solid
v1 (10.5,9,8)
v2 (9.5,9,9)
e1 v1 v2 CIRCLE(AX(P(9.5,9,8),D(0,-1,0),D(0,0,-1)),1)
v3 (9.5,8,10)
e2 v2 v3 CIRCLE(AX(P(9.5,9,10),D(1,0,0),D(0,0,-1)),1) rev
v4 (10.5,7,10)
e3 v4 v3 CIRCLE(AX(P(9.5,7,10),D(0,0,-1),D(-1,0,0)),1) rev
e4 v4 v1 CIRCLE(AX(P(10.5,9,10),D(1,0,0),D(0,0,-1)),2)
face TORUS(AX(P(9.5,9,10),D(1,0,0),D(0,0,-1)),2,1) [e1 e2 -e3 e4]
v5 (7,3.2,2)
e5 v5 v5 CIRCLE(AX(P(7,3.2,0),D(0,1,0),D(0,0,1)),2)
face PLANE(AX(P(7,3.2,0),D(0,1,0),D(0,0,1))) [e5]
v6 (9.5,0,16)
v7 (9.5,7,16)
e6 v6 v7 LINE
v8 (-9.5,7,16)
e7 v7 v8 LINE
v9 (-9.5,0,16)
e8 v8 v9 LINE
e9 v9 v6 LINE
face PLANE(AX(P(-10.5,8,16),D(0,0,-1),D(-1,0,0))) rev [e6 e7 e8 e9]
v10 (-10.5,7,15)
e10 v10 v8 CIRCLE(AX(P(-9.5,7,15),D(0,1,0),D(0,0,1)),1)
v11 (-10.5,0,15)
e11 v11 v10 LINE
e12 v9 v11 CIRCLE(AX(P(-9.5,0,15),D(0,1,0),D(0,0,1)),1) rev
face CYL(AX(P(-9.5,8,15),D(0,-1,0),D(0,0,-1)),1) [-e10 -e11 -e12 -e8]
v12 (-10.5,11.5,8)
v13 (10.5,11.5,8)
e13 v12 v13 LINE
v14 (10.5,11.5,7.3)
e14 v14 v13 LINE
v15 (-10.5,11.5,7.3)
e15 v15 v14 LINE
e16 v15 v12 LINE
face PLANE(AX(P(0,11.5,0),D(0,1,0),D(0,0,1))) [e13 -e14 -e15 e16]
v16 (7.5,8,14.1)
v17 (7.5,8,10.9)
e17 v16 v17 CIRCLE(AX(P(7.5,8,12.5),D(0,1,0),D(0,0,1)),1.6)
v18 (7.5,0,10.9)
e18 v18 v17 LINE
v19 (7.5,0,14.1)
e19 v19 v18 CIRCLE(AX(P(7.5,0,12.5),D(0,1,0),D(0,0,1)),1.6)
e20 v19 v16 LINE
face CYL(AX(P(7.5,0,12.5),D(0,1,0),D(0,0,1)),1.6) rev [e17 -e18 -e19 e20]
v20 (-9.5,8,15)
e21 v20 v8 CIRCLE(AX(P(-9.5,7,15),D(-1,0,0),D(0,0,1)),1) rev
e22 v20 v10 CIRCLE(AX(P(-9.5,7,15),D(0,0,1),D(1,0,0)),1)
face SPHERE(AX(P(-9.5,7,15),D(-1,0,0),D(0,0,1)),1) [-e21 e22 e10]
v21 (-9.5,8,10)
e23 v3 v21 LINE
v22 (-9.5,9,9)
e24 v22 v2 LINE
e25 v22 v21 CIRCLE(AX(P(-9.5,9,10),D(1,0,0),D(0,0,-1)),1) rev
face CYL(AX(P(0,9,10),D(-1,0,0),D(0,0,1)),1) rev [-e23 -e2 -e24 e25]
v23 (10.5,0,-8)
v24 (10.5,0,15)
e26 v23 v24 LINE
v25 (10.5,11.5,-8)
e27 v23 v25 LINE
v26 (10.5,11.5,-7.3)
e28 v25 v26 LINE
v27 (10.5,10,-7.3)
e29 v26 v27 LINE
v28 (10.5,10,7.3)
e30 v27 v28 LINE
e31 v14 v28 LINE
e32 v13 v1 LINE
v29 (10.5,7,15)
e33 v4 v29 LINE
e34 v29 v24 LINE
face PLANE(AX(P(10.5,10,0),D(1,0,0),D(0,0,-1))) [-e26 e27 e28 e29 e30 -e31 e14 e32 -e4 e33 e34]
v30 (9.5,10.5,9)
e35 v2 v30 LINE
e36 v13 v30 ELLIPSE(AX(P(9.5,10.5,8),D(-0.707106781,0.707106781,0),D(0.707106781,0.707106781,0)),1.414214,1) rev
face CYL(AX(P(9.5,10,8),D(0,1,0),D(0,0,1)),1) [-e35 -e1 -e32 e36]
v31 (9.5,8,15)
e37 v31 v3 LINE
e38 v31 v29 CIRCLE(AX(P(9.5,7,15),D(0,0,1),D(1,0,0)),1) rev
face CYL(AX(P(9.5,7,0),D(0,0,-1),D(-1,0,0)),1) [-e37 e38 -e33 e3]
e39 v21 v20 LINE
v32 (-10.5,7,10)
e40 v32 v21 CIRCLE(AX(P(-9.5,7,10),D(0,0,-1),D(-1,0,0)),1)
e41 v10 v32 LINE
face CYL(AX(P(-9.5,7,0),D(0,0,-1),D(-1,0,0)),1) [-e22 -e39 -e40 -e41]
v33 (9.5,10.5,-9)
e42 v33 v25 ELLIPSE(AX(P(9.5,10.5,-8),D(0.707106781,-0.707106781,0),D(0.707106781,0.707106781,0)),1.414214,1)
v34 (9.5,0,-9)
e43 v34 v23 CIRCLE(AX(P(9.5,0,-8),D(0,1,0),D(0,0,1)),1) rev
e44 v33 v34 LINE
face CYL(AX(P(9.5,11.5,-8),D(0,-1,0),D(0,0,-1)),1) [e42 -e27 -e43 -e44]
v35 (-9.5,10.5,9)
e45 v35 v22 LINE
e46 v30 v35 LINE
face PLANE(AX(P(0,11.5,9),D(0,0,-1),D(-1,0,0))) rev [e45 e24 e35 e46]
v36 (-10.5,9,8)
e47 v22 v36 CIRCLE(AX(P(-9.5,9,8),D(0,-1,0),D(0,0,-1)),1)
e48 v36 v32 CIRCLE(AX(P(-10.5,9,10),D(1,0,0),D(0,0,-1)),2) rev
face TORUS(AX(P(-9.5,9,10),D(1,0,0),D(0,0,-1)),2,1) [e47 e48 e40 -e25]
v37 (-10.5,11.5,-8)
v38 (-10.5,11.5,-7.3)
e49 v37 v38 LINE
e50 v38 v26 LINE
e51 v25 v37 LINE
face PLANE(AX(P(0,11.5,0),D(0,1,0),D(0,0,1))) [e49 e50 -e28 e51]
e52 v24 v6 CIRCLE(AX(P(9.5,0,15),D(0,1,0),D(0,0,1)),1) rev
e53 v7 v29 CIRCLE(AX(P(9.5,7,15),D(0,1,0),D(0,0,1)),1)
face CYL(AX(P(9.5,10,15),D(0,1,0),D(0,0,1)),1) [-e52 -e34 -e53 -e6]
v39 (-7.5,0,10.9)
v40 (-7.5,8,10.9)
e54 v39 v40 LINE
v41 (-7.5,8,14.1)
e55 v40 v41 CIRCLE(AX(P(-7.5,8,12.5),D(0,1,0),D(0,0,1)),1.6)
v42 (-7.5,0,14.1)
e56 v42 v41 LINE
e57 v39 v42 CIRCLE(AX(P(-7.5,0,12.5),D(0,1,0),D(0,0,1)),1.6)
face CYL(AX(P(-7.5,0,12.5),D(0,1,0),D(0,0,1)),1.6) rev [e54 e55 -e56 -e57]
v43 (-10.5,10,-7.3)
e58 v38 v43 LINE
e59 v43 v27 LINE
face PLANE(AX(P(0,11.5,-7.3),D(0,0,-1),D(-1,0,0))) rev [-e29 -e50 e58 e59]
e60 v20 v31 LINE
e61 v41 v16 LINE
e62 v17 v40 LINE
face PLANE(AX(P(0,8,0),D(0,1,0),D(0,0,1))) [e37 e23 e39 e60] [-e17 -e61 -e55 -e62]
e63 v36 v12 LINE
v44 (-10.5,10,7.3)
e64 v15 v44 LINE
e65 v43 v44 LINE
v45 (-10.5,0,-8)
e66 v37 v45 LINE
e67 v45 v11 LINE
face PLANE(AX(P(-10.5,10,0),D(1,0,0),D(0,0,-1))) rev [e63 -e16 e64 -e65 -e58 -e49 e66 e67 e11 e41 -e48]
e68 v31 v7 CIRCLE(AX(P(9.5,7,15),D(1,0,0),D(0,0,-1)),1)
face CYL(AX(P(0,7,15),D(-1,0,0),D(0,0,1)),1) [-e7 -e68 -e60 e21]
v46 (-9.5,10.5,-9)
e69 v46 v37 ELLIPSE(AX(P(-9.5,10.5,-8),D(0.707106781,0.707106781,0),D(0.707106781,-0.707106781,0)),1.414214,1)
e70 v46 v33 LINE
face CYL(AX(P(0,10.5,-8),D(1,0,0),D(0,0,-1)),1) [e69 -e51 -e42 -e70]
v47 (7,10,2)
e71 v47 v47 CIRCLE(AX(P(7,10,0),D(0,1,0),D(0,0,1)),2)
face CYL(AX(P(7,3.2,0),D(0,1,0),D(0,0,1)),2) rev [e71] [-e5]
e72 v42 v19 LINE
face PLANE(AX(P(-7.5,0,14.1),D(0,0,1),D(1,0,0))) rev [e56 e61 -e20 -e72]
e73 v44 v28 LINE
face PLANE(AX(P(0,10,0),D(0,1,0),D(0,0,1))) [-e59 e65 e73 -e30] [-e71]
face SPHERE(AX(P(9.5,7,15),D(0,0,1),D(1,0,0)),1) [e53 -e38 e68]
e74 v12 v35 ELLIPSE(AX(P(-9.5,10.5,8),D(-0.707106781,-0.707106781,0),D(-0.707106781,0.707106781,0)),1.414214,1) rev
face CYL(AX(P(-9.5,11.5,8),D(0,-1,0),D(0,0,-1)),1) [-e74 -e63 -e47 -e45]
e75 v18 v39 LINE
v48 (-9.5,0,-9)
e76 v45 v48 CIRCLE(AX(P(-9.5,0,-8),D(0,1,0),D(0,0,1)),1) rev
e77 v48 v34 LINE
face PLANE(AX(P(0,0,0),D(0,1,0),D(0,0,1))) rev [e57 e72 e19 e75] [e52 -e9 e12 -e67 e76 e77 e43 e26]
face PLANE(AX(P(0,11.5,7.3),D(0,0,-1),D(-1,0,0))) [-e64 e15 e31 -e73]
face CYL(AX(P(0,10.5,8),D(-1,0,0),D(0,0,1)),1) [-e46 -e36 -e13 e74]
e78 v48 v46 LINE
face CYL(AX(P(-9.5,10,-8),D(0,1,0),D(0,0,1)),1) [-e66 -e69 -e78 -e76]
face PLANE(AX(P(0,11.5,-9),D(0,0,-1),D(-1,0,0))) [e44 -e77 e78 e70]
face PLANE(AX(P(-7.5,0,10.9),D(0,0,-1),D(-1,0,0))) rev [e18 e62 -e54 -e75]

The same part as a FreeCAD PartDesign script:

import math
import FreeCAD as App
import Part
import Sketcher

V = App.Vector


def edges_at(feature, points):
    """Names of the edges that pass closest to the given points."""
    edges = feature.Shape.Edges
    near = lambda p: min(range(len(edges)), key=lambda i: edges[i].distToShape(Part.Vertex(*p))[0])
    return sorted({f"Edge{near(p) + 1}" for p in points})

doc = App.newDocument("Part")
body = doc.addObject("PartDesign::Body", "Body")

# Sketch on XZ plane
sketch1 = doc.addObject("Sketcher::SketchObject", "Sketch")
body.addObject(sketch1)
sketch1.AttachmentSupport = (doc.XZ_Plane, [""])
sketch1.MapMode = "FlatFace"
sketch1.addGeometry([
    Part.LineSegment(V(-10, -7, 0), V(-10, 7, 0)),
    Part.LineSegment(V(-10, 7, 0), V(10, 7, 0)),
    Part.LineSegment(V(10, 7, 0), V(10, -7, 0)),
    Part.LineSegment(V(10, -7, 0), V(-10, -7, 0)),
], False)
sketch1.addConstraint([
    Sketcher.Constraint("Coincident", 0, 2, 1, 1),
    Sketcher.Constraint("Coincident", 1, 2, 2, 1),
    Sketcher.Constraint("Coincident", 2, 2, 3, 1),
    Sketcher.Constraint("Coincident", 3, 2, 0, 1),
    Sketcher.Constraint("Vertical", 0),
    Sketcher.Constraint("Horizontal", 1),
    Sketcher.Constraint("Vertical", 2),
    Sketcher.Constraint("Horizontal", 3),
    Sketcher.Constraint("Symmetric", 0, 2, 2, 2, -1, 1),
    Sketcher.Constraint("DistanceX", 1, 1, 1, 2, 21.0),
    Sketcher.Constraint("DistanceY", 0, 1, 0, 2, 14.6),
])
pad1 = doc.addObject("PartDesign::Pad", "Pad")
body.addObject(pad1)
pad1.Profile = sketch1
pad1.Length = 10
pad1.Reversed = True

# Sketch on XZ plane
sketch2 = doc.addObject("Sketcher::SketchObject", "Sketch001")
body.addObject(sketch2)
sketch2.AttachmentSupport = (doc.XZ_Plane, [""])
sketch2.MapMode = "FlatFace"
sketch2.addGeometry([
    Part.LineSegment(V(-10.5, 7.3, 0), V(-10.5, 9, 0)),  # 0
    Part.LineSegment(V(-10.5, 9, 0), V(10.5, 9, 0)),  # 1
    Part.LineSegment(V(10.5, 9, 0), V(10.5, 7.3, 0)),  # 2
    Part.LineSegment(V(10.5, 7.3, 0), V(-10.5, 7.3, 0)),  # 3
    Part.LineSegment(V(-10.5, -9, 0), V(-10.5, -7.3, 0)),  # 4
    Part.LineSegment(V(-10.5, -7.3, 0), V(10.5, -7.3, 0)),  # 5
    Part.LineSegment(V(10.5, -7.3, 0), V(10.5, -9, 0)),  # 6
    Part.LineSegment(V(10.5, -9, 0), V(-10.5, -9, 0)),  # 7
], False)
sketch2.addConstraint([
    Sketcher.Constraint("Coincident", 0, 2, 1, 1),
    Sketcher.Constraint("Coincident", 1, 2, 2, 1),
    Sketcher.Constraint("Coincident", 2, 2, 3, 1),
    Sketcher.Constraint("Coincident", 3, 2, 0, 1),
    Sketcher.Constraint("Coincident", 4, 2, 5, 1),
    Sketcher.Constraint("Coincident", 5, 2, 6, 1),
    Sketcher.Constraint("Coincident", 6, 2, 7, 1),
    Sketcher.Constraint("Coincident", 7, 2, 4, 1),
    Sketcher.Constraint("Vertical", 0),
    Sketcher.Constraint("Horizontal", 1),
    Sketcher.Constraint("Vertical", 2),
    Sketcher.Constraint("Horizontal", 3),
    Sketcher.Constraint("Vertical", 4),
    Sketcher.Constraint("Horizontal", 5),
    Sketcher.Constraint("Vertical", 6),
    Sketcher.Constraint("Horizontal", 7),
    Sketcher.Constraint("Symmetric", 2, 2, 4, 2, -1, 1),
    Sketcher.Constraint("Symmetric", 0, 2, 6, 2, -1, 1),
    Sketcher.Constraint("Vertical", 3, 2, 4, 2),
    Sketcher.Constraint("DistanceX", 1, 1, 1, 2, 21.0),
    Sketcher.Constraint("DistanceY", 0, 1, 0, 2, 1.7),
    Sketcher.Constraint("DistanceY", -1, 1, 0, 2, 9.0),
])
pad2 = doc.addObject("PartDesign::Pad", "Pad001")
body.addObject(pad2)
pad2.Profile = sketch2
pad2.Length = 11.5
pad2.Reversed = True

# Sketch on XZ plane
sketch3 = doc.addObject("Sketcher::SketchObject", "Sketch002")
body.addObject(sketch3)
sketch3.AttachmentSupport = (doc.XZ_Plane, [""])
sketch3.MapMode = "FlatFace"
sketch3.addGeometry([
    Part.LineSegment(V(-10, 9, 0), V(-10, 16, 0)),
    Part.LineSegment(V(-10, 16, 0), V(10, 16, 0)),
    Part.LineSegment(V(10, 16, 0), V(10, 9, 0)),
    Part.LineSegment(V(10, 9, 0), V(-10, 9, 0)),
], False)
sketch3.addConstraint([
    Sketcher.Constraint("Coincident", 0, 2, 1, 1),
    Sketcher.Constraint("Coincident", 1, 2, 2, 1),
    Sketcher.Constraint("Coincident", 2, 2, 3, 1),
    Sketcher.Constraint("Coincident", 3, 2, 0, 1),
    Sketcher.Constraint("Vertical", 0),
    Sketcher.Constraint("Horizontal", 1),
    Sketcher.Constraint("Vertical", 2),
    Sketcher.Constraint("Horizontal", 3),
    Sketcher.Constraint("DistanceX", 1, 1, 1, 2, 21.0),
    Sketcher.Constraint("DistanceY", 0, 1, 0, 2, 7.0),
    Sketcher.Constraint("DistanceY", -1, 1, 0, 2, 16.0),
    Sketcher.Constraint("DistanceX", 0, 2, -1, 1, 10.5),
])
pad3 = doc.addObject("PartDesign::Pad", "Pad002")
body.addObject(pad3)
pad3.Profile = sketch3
pad3.Length = 8
pad3.Reversed = True
doc.recompute()

fillet = doc.addObject("PartDesign::Fillet", "Fillet")
body.addObject(fillet)
fillet.Base = (pad3, edges_at(pad3, [
    (10.5, 9.75, 9),
    (-10.5, 9.75, 9),
    (0, 11.5, 9),
    (0, 11.5, -9),
    (10.5, 5.75, -9),
    (-10.5, 5.75, -9),
    (-10.5, 4, 16),
    (10.5, 4, 16),
    (-10.5, 8, 12.5),
    (0, 8, 16),
    (10.5, 8, 12.5),
    (0, 8, 9),
]))
fillet.Radius = 1

# Sketch on XZ plane
sketch4 = doc.addObject("Sketcher::SketchObject", "Sketch003")
body.addObject(sketch4)
sketch4.AttachmentSupport = (doc.XZ_Plane, [""])
sketch4.MapMode = "FlatFace"
sketch4.AttachmentOffset = App.Placement(V(0, 0, -8), App.Rotation())
sketch4.addGeometry([
    Part.LineSegment(V(7.5, 10.9, 0), V(-7.5, 10.9, 0)),
    Part.ArcOfCircle(Part.Circle(V(-7.5, 12.5, 0), V(0, 0, 1), 1.6), math.radians(90), math.radians(270)),
    Part.LineSegment(V(-7.5, 14.1, 0), V(7.5, 14.1, 0)),
    Part.ArcOfCircle(Part.Circle(V(7.5, 12.5, 0), V(0, 0, 1), 1.6), math.radians(-90), math.radians(90)),
], False)
sketch4.addConstraint([
    Sketcher.Constraint("Tangent", 0, 2, 1, 2),
    Sketcher.Constraint("Tangent", 1, 1, 2, 1),
    Sketcher.Constraint("Tangent", 2, 2, 3, 2),
    Sketcher.Constraint("Tangent", 3, 1, 0, 1),
    Sketcher.Constraint("Horizontal", 0),
    Sketcher.Constraint("Horizontal", 2),
    Sketcher.Constraint("Radius", 1, 1.6),
    Sketcher.Constraint("DistanceX", 0, 2, 0, 1, 15.0),
    Sketcher.Constraint("DistanceX", 1, 3, -1, 1, 7.5),
    Sketcher.Constraint("DistanceY", -1, 1, 1, 3, 12.5),
])
pocket1 = doc.addObject("PartDesign::Pocket", "Pocket")
body.addObject(pocket1)
pocket1.Profile = sketch4
pocket1.Type = "ThroughAll"
pocket1.Reversed = True

# Sketch on XZ plane
sketch5 = doc.addObject("Sketcher::SketchObject", "Sketch004")
body.addObject(sketch5)
sketch5.AttachmentSupport = (doc.XZ_Plane, [""])
sketch5.MapMode = "FlatFace"
sketch5.AttachmentOffset = App.Placement(V(0, 0, -10), App.Rotation())
sketch5.addGeometry(Part.Circle(V(7, 0, 0), V(0, 0, 1), 2), False)
sketch5.addConstraint([
    Sketcher.Constraint("PointOnObject", 0, 3, -1),
    Sketcher.Constraint("Diameter", 0, 4.0),
    Sketcher.Constraint("DistanceX", -1, 1, 0, 3, 7.0),
])
pocket2 = doc.addObject("PartDesign::Pocket", "Pocket001")
body.addObject(pocket2)
pocket2.Profile = sketch5
pocket2.Length = 6.8
pocket2.Reversed = True

doc.recompute()
